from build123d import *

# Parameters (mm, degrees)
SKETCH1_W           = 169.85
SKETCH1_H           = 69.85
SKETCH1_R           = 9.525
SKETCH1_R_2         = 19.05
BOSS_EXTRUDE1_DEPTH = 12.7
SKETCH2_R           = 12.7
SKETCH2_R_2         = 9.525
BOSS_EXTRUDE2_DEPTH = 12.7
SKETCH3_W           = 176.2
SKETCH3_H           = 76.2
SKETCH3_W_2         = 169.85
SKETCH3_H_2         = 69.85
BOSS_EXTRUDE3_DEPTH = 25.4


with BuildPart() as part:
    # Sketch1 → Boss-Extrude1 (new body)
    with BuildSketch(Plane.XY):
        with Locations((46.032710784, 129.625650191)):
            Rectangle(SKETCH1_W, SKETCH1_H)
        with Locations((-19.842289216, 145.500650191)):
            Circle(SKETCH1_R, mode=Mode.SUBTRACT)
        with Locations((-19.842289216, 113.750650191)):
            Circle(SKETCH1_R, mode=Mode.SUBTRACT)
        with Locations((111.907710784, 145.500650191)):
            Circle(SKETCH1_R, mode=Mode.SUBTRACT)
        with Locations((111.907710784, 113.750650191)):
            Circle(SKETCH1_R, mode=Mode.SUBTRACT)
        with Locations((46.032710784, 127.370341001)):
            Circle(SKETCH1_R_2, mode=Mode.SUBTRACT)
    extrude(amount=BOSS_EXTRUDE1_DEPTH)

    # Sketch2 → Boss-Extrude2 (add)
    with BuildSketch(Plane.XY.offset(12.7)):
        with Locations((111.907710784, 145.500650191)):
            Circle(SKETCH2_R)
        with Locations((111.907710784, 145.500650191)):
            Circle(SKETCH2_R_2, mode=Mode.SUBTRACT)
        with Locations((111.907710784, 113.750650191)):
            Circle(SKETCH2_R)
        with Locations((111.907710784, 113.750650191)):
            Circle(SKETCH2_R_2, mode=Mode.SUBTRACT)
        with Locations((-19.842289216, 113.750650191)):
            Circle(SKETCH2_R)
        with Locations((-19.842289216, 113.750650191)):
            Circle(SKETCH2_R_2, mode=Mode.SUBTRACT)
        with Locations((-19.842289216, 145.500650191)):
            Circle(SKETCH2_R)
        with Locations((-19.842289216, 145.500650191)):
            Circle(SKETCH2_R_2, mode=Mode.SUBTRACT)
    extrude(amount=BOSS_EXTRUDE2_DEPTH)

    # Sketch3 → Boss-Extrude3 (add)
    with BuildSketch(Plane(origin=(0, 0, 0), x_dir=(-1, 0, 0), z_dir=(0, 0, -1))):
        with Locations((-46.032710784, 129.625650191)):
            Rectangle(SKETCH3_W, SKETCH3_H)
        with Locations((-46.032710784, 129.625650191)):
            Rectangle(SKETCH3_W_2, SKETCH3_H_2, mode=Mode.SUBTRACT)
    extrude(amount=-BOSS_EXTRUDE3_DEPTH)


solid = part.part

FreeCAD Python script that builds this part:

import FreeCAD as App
import Part
import Sketcher

V = App.Vector
Q = App.Units.Quantity


def add_polygon(sketch, points):
    """Adds a closed chain of lines whose ends are joined by coincident constraints."""
    first, n = sketch.GeometryCount, len(points)
    for a, b in zip(points, points[1:] + points[:1]):
        sketch.addGeometry(Part.LineSegment(App.Vector(*a, 0), App.Vector(*b, 0)), False)
    for i in range(n):
        sketch.addConstraint(Sketcher.Constraint("Coincident", first + i, 2, first + (i + 1) % n, 1))

doc = App.newDocument("Part")
body = doc.addObject("PartDesign::Body", "Body")

sketch1 = body.newObject("Sketcher::SketchObject", "Sketch")
sketch1.AttachmentSupport = (doc.getObject("XY_Plane"), [""])
sketch1.MapMode = "FlatFace"
add_polygon(sketch1, [(-38.892289, 164.55065), (-38.892289, 94.70065), (130.957711, 94.70065), (130.957711, 164.55065)])
sketch1.addGeometry(Part.Circle(V(-19.842289, 113.75065, 0), V(0, 0, 1), 9.525), False)
sketch1.addGeometry(Part.Circle(V(111.907711, 113.75065, 0), V(0, 0, 1), 9.525), False)
sketch1.addGeometry(Part.Circle(V(46.032711, 127.370341, 0), V(0, 0, 1), 19.05), False)
sketch1.addGeometry(Part.Circle(V(-19.842289, 145.50065, 0), V(0, 0, 1), 9.525), False)
sketch1.addGeometry(Part.Circle(V(111.907711, 145.50065, 0), V(0, 0, 1), 9.525), False)
sketch1.addConstraint([
    Sketcher.Constraint("Vertical", 0),
    Sketcher.Constraint("Horizontal", 1),
    Sketcher.Constraint("Vertical", 2),
    Sketcher.Constraint("Horizontal", 3),
    Sketcher.Constraint("Equal", 4, 5),
    Sketcher.Constraint("Equal", 5, 7),
    Sketcher.Constraint("Equal", 7, 8),
    Sketcher.Constraint("Horizontal", 4, 3, 5, 3),
    Sketcher.Constraint("Horizontal", 7, 3, 8, 3),
    Sketcher.Constraint("Vertical", 4, 3, 7, 3),
    Sketcher.Constraint("Vertical", 5, 3, 8, 3),
    Sketcher.Constraint("Diameter", 6, Q("1.5 in")),
    Sketcher.Constraint("Diameter", 4, Q("0.75 in")),
    Sketcher.Constraint("DistanceY", 0, 2, 7, 3, Q("2 in")),
    Sketcher.Constraint("DistanceY", 5, 3, 2, 2, Q("2 in")),
    Sketcher.Constraint("DistanceY", 0, 2, 0, 1, Q("2.75 in")),
    Sketcher.Constraint("DistanceX", 0, 2, 4, 3, Q("0.75 in")),
    Sketcher.Constraint("DistanceX", 5, 3, 1, 2, Q("0.75 in")),
    Sketcher.Constraint("DistanceX", 1, 1, 1, 2, 169.85),
    Sketcher.Constraint("DistanceX", 4, 3, 6, 3, 65.875),
    Sketcher.Constraint("DistanceX", 4, 3, -1, 1, 19.842289),
    Sketcher.Constraint("DistanceY", -1, 1, 4, 3, 113.75065),
    Sketcher.Constraint("DistanceY", -1, 1, 6, 3, 127.370341),
])
pad1 = body.newObject("PartDesign::Pad", "Pad")
pad1.Profile = sketch1
pad1.Length = Q("0.5 in")

sketch2 = body.newObject("Sketcher::SketchObject", "Sketch001")
sketch2.AttachmentSupport = (doc.getObject("XY_Plane"), [""])
sketch2.MapMode = "FlatFace"
sketch2.AttachmentOffset = App.Placement(V(0, 0, 0.5 * 25.4), App.Rotation())
sketch2.addGeometry([
    Part.Circle(V(111.907711, 145.50065, 0), V(0, 0, 1), 12.7),
    Part.Circle(V(111.907711, 145.50065, 0), V(0, 0, 1), 9.525),
    Part.Circle(V(111.907711, 113.75065, 0), V(0, 0, 1), 12.7),
    Part.Circle(V(111.907711, 113.75065, 0), V(0, 0, 1), 9.525),
    Part.Circle(V(-19.842289, 113.75065, 0), V(0, 0, 1), 12.7),
    Part.Circle(V(-19.842289, 113.75065, 0), V(0, 0, 1), 9.525),
    Part.Circle(V(-19.842289, 145.50065, 0), V(0, 0, 1), 12.7),
    Part.Circle(V(-19.842289, 145.50065, 0), V(0, 0, 1), 9.525),
], False)
sketch2.addConstraint([
    Sketcher.Constraint("Coincident", 1, 3, 0, 3),
    Sketcher.Constraint("Coincident", 3, 3, 2, 3),
    Sketcher.Constraint("Coincident", 5, 3, 4, 3),
    Sketcher.Constraint("Coincident", 7, 3, 6, 3),
    Sketcher.Constraint("Equal", 0, 2),
    Sketcher.Constraint("Equal", 1, 3),
    Sketcher.Constraint("Equal", 2, 4),
    Sketcher.Constraint("Equal", 3, 5),
    Sketcher.Constraint("Equal", 4, 6),
    Sketcher.Constraint("Equal", 5, 7),
    Sketcher.Constraint("Horizontal", 3, 3, 4, 3),
    Sketcher.Constraint("Horizontal", 1, 3, 6, 3),
    Sketcher.Constraint("Vertical", 1, 3, 2, 3),
    Sketcher.Constraint("Vertical", 5, 3, 6, 3),
    Sketcher.Constraint("Diameter", 0, Q("1 in")),
    Sketcher.Constraint("Diameter", 1, Q("0.75 in")),
    Sketcher.Constraint("DistanceY", 2, 3, 0, 3, Q("1.25 in")),
    Sketcher.Constraint("DistanceX", 4, 3, 2, 3, 131.75),
    Sketcher.Constraint("DistanceX", -1, 1, 0, 3, 111.907711),
    Sketcher.Constraint("DistanceY", -1, 1, 0, 3, 145.50065),
])
pad2 = body.newObject("PartDesign::Pad", "Pad001")
pad2.Profile = sketch2
pad2.Length = Q("0.5 in")

sketch3 = body.newObject("Sketcher::SketchObject", "Sketch002")
sketch3.AttachmentSupport = (doc.getObject("XY_Plane"), [""])
sketch3.MapMode = "FlatFace"
add_polygon(sketch3, [(134.132711, 167.72565), (134.132711, 91.52565), (-42.067289, 91.52565), (-42.067289, 167.72565)])
add_polygon(sketch3, [(-38.892289, 94.70065), (130.957711, 94.70065), (130.957711, 164.55065), (-38.892289, 164.55065)])
sketch3.addConstraint([
    Sketcher.Constraint("Vertical", 0),
    Sketcher.Constraint("Horizontal", 1),
    Sketcher.Constraint("Vertical", 2),
    Sketcher.Constraint("Horizontal", 3),
    Sketcher.Constraint("Horizontal", 4),
    Sketcher.Constraint("Vertical", 5),
    Sketcher.Constraint("Horizontal", 6),
    Sketcher.Constraint("Vertical", 7),
    Sketcher.Constraint("DistanceY", 0, 2, 0, 1, Q("3 in")),
    Sketcher.Constraint("DistanceY", 5, 1, 5, 2, Q("2.75 in")),
    Sketcher.Constraint("DistanceX", 4, 2, 0, 2, Q("0.125 in")),
    Sketcher.Constraint("DistanceY", 0, 2, 4, 2, Q("0.125 in")),
    Sketcher.Constraint("DistanceX", 2, 2, 6, 2, Q("0.125 in")),
    Sketcher.Constraint("DistanceX", 1, 2, 1, 1, 176.2),
    Sketcher.Constraint("DistanceX", -1, 1, 0, 2, 134.132711),
    Sketcher.Constraint("DistanceY", -1, 1, 0, 2, 91.52565),
])
pad3 = body.newObject("PartDesign::Pad", "Pad002")
pad3.Profile = sketch3
pad3.Length = Q("1 in")

doc.recompute()
